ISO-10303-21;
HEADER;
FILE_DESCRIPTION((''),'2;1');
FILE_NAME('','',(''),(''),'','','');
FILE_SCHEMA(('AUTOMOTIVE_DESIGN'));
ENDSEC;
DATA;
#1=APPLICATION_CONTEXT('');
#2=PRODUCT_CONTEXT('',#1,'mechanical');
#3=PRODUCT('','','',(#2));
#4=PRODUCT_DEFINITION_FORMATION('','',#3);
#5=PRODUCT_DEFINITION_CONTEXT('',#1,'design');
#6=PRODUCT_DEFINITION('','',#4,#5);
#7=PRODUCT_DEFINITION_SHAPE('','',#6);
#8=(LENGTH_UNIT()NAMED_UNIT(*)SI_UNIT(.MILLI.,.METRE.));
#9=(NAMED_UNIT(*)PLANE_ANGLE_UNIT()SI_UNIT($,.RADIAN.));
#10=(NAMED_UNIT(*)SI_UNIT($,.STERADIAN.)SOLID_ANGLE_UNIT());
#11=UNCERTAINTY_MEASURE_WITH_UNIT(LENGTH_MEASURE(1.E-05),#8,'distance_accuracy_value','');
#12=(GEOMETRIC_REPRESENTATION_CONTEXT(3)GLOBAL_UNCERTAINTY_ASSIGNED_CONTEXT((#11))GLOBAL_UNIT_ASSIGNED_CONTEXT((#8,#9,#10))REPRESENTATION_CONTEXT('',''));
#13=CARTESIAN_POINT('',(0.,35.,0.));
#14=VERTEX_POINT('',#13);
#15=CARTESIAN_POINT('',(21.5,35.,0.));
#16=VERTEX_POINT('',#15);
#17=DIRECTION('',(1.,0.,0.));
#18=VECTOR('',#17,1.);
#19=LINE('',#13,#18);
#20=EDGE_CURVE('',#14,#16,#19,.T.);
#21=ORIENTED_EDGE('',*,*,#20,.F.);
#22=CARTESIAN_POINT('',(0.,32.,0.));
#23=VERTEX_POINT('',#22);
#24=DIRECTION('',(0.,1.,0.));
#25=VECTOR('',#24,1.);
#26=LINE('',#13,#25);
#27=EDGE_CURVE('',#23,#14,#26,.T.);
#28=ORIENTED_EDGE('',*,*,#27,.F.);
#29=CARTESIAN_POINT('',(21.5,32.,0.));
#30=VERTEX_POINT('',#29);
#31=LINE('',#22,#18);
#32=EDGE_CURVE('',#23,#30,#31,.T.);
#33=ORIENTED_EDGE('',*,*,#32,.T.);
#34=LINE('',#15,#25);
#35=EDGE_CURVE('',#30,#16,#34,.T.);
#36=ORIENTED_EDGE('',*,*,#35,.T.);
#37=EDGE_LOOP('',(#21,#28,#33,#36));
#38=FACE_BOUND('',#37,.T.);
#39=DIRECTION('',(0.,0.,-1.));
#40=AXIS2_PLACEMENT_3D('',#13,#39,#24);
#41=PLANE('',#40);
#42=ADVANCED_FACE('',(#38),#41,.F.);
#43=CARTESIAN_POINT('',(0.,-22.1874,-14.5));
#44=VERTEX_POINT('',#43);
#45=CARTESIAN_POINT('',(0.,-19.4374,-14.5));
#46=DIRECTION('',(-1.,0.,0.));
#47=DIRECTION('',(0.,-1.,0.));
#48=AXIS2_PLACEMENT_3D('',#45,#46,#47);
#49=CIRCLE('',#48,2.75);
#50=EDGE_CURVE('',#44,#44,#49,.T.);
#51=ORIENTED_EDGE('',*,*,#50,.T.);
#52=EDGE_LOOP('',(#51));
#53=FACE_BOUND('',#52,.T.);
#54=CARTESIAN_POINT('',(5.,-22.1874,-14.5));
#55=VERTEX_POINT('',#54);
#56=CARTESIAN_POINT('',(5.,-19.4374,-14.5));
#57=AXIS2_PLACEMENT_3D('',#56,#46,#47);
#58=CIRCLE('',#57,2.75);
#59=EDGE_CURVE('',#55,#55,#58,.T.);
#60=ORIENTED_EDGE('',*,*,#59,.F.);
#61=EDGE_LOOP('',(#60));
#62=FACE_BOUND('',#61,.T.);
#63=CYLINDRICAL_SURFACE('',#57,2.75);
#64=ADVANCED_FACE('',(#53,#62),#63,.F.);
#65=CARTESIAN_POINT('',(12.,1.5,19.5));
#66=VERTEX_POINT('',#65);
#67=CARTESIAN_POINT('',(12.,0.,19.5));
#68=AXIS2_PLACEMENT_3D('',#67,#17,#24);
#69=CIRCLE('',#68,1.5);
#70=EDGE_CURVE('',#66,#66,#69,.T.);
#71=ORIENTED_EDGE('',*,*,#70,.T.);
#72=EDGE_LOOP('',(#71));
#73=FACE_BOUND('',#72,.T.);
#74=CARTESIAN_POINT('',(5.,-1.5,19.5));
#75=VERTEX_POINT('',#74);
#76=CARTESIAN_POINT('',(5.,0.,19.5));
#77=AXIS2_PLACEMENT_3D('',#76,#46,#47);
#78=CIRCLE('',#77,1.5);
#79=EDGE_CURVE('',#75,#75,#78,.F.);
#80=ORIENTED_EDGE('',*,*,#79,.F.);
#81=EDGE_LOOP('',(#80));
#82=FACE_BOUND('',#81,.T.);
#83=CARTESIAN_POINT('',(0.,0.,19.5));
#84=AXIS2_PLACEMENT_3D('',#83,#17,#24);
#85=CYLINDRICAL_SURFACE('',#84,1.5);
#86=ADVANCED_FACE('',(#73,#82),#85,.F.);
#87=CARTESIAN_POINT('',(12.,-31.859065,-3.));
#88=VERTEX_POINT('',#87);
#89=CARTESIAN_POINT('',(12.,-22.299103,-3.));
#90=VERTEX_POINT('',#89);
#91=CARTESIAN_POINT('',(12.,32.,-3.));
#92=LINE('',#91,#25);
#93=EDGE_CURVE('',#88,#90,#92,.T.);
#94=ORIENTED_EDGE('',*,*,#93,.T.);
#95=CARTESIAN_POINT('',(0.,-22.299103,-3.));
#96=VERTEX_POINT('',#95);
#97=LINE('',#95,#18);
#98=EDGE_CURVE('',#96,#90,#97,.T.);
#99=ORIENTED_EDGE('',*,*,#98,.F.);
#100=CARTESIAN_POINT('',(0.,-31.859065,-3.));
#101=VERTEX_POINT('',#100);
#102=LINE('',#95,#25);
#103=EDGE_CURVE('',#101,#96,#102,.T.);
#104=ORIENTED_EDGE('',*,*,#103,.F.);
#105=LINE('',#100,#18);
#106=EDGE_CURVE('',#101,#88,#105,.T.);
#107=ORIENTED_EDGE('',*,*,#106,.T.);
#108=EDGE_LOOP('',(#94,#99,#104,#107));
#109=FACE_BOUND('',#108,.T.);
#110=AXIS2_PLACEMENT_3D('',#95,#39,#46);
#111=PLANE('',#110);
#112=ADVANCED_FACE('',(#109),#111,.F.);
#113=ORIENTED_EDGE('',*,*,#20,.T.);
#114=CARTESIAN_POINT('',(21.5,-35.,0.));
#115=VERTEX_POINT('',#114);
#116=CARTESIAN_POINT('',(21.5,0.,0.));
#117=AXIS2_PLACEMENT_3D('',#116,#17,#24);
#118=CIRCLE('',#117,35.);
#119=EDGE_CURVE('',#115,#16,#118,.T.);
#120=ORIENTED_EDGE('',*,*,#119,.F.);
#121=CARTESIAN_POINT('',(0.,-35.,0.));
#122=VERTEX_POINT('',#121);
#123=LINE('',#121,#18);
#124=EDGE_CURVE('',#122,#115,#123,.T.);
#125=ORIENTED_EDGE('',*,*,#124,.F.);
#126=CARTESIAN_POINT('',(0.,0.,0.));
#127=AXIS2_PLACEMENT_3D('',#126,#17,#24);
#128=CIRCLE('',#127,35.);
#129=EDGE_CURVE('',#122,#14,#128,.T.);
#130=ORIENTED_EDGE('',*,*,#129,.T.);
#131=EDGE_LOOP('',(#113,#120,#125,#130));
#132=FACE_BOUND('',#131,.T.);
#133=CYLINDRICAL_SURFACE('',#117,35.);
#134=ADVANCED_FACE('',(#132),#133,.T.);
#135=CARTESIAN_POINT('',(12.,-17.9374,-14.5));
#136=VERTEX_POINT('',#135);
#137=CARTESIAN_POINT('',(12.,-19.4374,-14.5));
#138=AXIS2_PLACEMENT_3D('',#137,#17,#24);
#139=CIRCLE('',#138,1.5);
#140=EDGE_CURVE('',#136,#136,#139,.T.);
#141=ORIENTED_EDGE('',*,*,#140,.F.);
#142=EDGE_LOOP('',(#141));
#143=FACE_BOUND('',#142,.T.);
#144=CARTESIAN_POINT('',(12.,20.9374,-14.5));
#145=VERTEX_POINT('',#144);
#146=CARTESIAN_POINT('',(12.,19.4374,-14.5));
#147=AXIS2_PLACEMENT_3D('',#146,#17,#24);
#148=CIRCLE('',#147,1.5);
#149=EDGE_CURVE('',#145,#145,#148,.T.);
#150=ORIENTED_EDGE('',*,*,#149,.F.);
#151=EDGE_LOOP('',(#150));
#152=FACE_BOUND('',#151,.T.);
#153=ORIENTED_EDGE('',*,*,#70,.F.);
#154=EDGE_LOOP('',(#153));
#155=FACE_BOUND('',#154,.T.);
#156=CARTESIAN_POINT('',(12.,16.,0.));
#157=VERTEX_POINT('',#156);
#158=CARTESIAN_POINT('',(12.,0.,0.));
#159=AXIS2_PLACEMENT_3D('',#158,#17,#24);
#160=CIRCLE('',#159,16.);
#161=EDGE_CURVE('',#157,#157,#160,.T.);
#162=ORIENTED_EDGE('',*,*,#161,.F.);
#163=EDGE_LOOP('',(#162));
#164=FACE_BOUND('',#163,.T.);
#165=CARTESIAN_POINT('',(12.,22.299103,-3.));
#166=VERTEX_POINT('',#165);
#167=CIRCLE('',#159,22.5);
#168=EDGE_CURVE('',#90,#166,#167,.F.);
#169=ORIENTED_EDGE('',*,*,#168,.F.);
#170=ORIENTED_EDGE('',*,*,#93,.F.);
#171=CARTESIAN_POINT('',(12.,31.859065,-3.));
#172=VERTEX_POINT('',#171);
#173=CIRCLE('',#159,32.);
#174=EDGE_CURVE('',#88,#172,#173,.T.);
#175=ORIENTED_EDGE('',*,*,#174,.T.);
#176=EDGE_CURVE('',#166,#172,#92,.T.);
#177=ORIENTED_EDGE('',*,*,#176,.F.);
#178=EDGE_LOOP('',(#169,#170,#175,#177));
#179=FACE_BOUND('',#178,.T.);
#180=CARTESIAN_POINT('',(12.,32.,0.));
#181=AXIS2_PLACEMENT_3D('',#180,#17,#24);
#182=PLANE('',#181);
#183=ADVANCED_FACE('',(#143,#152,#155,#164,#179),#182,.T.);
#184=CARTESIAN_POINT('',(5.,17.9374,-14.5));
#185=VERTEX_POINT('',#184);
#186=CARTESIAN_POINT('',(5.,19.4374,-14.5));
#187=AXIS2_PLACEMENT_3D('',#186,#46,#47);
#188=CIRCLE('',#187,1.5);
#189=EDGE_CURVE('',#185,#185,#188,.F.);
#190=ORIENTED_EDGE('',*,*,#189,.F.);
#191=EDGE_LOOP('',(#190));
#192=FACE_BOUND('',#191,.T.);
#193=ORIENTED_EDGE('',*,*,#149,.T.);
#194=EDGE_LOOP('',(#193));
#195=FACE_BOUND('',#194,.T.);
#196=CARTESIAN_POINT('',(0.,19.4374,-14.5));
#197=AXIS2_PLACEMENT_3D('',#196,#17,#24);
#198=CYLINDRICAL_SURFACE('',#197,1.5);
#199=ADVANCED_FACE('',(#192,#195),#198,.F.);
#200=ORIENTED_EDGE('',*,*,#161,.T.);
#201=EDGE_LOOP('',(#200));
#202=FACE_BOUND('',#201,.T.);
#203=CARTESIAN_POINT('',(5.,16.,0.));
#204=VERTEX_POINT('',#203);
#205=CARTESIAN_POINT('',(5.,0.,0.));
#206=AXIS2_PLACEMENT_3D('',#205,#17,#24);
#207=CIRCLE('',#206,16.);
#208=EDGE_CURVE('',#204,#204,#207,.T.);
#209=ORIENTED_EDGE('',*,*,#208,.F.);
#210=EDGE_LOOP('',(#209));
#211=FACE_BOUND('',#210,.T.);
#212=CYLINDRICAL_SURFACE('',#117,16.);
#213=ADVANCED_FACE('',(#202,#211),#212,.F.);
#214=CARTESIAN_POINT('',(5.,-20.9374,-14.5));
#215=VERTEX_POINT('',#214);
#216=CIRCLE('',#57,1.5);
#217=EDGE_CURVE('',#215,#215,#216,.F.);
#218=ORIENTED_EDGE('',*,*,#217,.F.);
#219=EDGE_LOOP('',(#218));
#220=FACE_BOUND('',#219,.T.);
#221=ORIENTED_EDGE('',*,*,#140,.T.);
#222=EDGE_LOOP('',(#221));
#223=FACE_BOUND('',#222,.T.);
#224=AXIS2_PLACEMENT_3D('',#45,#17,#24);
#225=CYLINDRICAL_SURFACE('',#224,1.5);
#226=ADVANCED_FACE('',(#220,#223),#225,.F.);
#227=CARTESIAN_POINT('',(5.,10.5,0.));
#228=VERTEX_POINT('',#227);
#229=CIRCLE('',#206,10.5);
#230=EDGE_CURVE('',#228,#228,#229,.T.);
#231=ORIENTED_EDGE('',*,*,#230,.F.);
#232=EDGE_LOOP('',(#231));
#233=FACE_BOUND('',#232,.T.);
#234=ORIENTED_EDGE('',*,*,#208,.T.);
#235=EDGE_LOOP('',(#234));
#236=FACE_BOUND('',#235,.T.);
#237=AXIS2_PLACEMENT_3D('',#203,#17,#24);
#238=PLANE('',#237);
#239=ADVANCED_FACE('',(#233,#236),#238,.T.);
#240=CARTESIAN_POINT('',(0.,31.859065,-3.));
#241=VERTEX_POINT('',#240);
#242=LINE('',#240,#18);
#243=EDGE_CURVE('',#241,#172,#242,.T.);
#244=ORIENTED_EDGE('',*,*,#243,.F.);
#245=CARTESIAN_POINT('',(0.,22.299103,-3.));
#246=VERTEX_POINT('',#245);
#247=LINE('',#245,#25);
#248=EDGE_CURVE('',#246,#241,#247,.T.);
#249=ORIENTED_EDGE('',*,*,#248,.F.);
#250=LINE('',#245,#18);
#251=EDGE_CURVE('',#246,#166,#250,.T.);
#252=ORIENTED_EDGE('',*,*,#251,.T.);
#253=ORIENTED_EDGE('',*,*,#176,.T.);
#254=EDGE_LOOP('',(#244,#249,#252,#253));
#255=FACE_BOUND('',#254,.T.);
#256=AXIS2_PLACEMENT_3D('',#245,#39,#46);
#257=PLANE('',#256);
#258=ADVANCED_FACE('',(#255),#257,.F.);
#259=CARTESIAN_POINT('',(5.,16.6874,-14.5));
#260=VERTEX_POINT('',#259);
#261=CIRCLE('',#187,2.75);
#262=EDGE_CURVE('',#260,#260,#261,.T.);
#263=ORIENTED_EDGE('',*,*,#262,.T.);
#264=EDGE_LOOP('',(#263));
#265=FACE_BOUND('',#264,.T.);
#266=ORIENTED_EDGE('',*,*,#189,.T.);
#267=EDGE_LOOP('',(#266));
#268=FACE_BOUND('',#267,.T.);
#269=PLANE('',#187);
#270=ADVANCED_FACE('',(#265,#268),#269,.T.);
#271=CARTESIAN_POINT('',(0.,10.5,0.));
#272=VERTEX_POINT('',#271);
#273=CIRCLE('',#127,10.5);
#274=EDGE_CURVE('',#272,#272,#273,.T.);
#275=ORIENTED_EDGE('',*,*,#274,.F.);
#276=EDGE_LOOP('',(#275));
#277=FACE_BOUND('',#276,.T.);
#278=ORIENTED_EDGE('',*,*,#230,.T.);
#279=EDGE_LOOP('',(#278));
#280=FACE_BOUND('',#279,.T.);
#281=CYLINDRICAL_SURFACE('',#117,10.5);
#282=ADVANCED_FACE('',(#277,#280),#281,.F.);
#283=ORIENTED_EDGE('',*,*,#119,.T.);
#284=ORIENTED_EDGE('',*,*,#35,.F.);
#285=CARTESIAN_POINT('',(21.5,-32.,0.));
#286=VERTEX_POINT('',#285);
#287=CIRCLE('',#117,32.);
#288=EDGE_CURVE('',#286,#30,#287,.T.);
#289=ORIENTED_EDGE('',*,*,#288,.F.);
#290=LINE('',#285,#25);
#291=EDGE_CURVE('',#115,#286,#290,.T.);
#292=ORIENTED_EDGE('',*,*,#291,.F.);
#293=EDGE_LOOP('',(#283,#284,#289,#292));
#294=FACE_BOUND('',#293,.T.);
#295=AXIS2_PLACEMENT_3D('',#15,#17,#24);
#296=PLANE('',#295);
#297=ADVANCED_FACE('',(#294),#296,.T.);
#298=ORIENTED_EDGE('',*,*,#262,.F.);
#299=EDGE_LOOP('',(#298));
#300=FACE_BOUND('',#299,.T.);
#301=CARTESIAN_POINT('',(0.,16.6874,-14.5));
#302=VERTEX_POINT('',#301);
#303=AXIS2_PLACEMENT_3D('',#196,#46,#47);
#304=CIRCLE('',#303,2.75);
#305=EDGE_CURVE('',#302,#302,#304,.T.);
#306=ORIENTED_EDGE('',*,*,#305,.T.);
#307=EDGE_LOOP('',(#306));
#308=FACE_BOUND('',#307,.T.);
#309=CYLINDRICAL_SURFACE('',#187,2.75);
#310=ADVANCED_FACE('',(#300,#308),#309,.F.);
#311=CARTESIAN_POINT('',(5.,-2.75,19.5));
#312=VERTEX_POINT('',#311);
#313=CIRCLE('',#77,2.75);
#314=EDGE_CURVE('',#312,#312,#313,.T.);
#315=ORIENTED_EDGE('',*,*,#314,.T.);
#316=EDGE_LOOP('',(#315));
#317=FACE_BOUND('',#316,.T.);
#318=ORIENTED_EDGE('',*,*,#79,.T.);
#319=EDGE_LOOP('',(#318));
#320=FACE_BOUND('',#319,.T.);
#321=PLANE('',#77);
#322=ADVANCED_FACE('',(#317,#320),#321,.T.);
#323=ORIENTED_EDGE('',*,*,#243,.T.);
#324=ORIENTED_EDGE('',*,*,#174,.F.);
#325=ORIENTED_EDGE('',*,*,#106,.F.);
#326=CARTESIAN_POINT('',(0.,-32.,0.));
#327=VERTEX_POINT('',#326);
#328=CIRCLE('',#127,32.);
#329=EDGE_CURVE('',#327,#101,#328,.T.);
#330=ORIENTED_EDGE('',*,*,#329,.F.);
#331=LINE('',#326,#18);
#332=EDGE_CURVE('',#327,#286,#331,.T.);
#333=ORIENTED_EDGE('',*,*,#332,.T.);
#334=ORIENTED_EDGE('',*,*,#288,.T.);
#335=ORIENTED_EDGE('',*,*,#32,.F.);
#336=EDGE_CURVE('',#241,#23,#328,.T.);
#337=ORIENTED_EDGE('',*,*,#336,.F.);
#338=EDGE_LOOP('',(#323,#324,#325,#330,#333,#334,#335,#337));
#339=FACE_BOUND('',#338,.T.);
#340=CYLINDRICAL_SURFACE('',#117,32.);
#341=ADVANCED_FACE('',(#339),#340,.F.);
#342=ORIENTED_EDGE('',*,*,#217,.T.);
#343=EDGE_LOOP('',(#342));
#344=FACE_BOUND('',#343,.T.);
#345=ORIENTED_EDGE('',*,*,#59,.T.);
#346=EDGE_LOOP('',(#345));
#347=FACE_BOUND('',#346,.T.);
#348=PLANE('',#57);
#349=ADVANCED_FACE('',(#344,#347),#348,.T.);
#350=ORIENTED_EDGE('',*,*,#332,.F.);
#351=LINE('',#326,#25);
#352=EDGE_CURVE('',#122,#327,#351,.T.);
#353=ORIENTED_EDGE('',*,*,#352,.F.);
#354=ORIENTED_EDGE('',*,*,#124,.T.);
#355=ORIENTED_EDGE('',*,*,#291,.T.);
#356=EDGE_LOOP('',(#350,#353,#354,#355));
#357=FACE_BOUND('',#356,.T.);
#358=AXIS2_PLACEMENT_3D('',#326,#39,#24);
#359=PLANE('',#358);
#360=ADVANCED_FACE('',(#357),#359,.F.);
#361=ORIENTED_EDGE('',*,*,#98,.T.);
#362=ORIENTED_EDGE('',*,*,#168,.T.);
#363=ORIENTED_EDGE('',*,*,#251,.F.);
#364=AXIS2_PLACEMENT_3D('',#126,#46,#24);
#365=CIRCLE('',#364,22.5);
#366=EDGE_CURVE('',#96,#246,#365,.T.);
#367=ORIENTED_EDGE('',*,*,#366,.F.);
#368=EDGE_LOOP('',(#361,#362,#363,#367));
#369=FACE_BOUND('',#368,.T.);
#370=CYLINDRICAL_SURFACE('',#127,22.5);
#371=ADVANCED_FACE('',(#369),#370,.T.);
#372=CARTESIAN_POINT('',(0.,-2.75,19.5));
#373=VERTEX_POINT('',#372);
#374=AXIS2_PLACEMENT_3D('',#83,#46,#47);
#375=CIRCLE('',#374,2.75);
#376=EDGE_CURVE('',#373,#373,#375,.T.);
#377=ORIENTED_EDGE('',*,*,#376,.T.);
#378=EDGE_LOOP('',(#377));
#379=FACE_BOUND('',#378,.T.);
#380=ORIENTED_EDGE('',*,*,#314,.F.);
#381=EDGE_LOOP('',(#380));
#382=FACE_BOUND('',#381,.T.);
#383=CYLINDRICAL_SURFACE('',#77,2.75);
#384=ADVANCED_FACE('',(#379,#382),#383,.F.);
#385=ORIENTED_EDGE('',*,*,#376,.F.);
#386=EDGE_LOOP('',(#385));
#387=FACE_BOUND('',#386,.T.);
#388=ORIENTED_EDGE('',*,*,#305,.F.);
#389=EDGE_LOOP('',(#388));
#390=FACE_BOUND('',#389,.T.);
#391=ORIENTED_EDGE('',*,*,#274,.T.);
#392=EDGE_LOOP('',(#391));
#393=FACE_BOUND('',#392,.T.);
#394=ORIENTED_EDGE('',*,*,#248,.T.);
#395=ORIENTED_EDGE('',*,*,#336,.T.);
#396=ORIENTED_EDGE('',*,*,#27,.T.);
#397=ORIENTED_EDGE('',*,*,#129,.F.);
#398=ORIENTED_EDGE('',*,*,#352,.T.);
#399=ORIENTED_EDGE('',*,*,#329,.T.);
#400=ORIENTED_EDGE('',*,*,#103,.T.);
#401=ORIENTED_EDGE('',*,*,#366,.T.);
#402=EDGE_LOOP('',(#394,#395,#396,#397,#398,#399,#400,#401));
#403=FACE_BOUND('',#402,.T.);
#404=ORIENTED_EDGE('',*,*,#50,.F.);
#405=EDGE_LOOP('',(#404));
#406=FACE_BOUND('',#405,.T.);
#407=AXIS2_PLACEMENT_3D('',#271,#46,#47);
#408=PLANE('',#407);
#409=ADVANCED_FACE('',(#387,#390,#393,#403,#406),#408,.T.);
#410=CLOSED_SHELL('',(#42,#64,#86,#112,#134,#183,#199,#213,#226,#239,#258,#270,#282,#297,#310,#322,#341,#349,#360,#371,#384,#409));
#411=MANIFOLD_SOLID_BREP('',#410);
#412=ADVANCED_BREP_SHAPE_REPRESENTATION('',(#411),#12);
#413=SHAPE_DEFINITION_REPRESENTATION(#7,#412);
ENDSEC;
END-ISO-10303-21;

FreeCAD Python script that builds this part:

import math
import FreeCAD as App
import Part
import Sketcher
from FreeCAD import Vector
Q = App.Units.Quantity

doc = App.newDocument("Part")
body = doc.addObject("PartDesign::Body", "Body")

# Sketch on XY plane
sketch1 = body.newObject("Sketcher::SketchObject", "Sketch")
sketch1.AttachmentSupport = (doc.getObject("XY_Plane"), [""])
sketch1.MapMode = "FlatFace"
sketch1.addGeometry(Part.LineSegment(Vector(21.5, 32, 0), Vector(21.5, 35, 0)), False)
sketch1.addGeometry(Part.LineSegment(Vector(21.5, 35, 0), Vector(0, 35, 0)), False)
sketch1.addGeometry(Part.LineSegment(Vector(0, 35, 0), Vector(0, 10.5, 0)), False)
sketch1.addGeometry(Part.LineSegment(Vector(0, 10.5, 0), Vector(5, 10.5, 0)), False)
sketch1.addGeometry(Part.LineSegment(Vector(5, 10.5, 0), Vector(5, 16, 0)), False)
sketch1.addGeometry(Part.LineSegment(Vector(5, 16, 0), Vector(12, 16, 0)), False)
sketch1.addGeometry(Part.LineSegment(Vector(12, 16, 0), Vector(12, 32, 0)), False)
sketch1.addGeometry(Part.LineSegment(Vector(12, 32, 0), Vector(21.5, 32, 0)), False)
sketch1.addConstraint(Sketcher.Constraint("Coincident", 0, 2, 1, 1))
sketch1.addConstraint(Sketcher.Constraint("Coincident", 1, 2, 2, 1))
sketch1.addConstraint(Sketcher.Constraint("Coincident", 2, 2, 3, 1))
sketch1.addConstraint(Sketcher.Constraint("Coincident", 3, 2, 4, 1))
sketch1.addConstraint(Sketcher.Constraint("Coincident", 4, 2, 5, 1))
sketch1.addConstraint(Sketcher.Constraint("Coincident", 5, 2, 6, 1))
sketch1.addConstraint(Sketcher.Constraint("Coincident", 6, 2, 7, 1))
sketch1.addConstraint(Sketcher.Constraint("Coincident", 7, 2, 0, 1))
sketch1.addConstraint(Sketcher.Constraint("Vertical", 0))
sketch1.addConstraint(Sketcher.Constraint("Horizontal", 1))
sketch1.addConstraint(Sketcher.Constraint("Vertical", 2))
sketch1.addConstraint(Sketcher.Constraint("Horizontal", 3))
sketch1.addConstraint(Sketcher.Constraint("Vertical", 4))
sketch1.addConstraint(Sketcher.Constraint("Horizontal", 5))
sketch1.addConstraint(Sketcher.Constraint("Vertical", 6))
sketch1.addConstraint(Sketcher.Constraint("Horizontal", 7))
sketch1.addConstraint(Sketcher.Constraint("PointOnObject", 1, 2, -2))
sketch1.addConstraint(Sketcher.Constraint("DistanceX", 3, 1, 3, 2, Q("5 mm")))
sketch1.addConstraint(Sketcher.Constraint("DistanceX", 5, 1, 5, 2, Q("7 mm")))
sketch1.addConstraint(Sketcher.Constraint("DistanceY", 0, 1, 0, 2, Q("3 mm")))
sketch1.addConstraint(Sketcher.Constraint("DistanceY", 6, 1, 6, 2, Q("16 mm")))
sketch1.addConstraint(Sketcher.Constraint("DistanceX", 1, 2, 1, 1, Q("21.5 mm")))
sketch1.addConstraint(Sketcher.Constraint("DistanceY", 2, 2, 2, 1, Q("24.5 mm")))
sketch1.addConstraint(Sketcher.Constraint("DistanceY", -1, 1, 0, 2, Q("35 mm")))
revolution = body.newObject("PartDesign::Revolution", "Revolution")
revolution.Profile = sketch1
revolution.ReferenceAxis = (sketch1, ["H_Axis"])
revolution.Angle = 360

# Sketch on YZ plane
sketch2 = body.newObject("Sketcher::SketchObject", "Sketch001")
sketch2.AttachmentSupport = (doc.getObject("YZ_Plane"), [""])
sketch2.MapMode = "FlatFace"
sketch2.AttachmentOffset = App.Placement(Vector(0, 0, 12), App.Rotation())
sketch2.addGeometry(Part.Circle(Vector(0, 19.5, 0), Vector(0, 0, 1), 1.5), False)
sketch2.addGeometry(Part.Circle(Vector(-19.4, -14.5, 0), Vector(0, 0, 1), 1.5), False)
sketch2.addGeometry(Part.Circle(Vector(19.4, -14.5, 0), Vector(0, 0, 1), 1.5), False)
sketch2.addGeometry(Part.LineSegment(Vector(22.3, -3, 0), Vector(31.9, -3, 0)), False)
sketch2.addGeometry(Part.ArcOfCircle(Part.Circle(Vector(0, 0, 0), Vector(0, 0, 1), 32), math.radians(-5.38), math.radians(0)), False)
sketch2.addGeometry(Part.LineSegment(Vector(32, 0, 0), Vector(35, 0, 0)), False)
sketch2.addGeometry(Part.ArcOfCircle(Part.Circle(Vector(0, 0, 0), Vector(0, 0, 1), 35), math.radians(0), math.radians(180)), False)
sketch2.addGeometry(Part.LineSegment(Vector(-35, 0, 0), Vector(-32, 0, 0)), False)
sketch2.addGeometry(Part.ArcOfCircle(Part.Circle(Vector(0, 0, 0), Vector(0, 0, 1), 32), math.radians(-180), math.radians(-174.62)), False)
sketch2.addGeometry(Part.LineSegment(Vector(-31.9, -3, 0), Vector(-22.3, -3, 0)), False)
sketch2.addGeometry(Part.ArcOfCircle(Part.Circle(Vector(0, 0, 0), Vector(0, 0, 1), 22.5), math.radians(-8), math.radians(188)), False)
sketch2.addConstraint(Sketcher.Constraint("Coincident", 3, 2, 4, 1))
sketch2.addConstraint(Sketcher.Constraint("Coincident", 4, 2, 5, 1))
sketch2.addConstraint(Sketcher.Constraint("Coincident", 5, 2, 6, 1))
sketch2.addConstraint(Sketcher.Constraint("Coincident", 6, 2, 7, 1))
sketch2.addConstraint(Sketcher.Constraint("Coincident", 7, 2, 8, 1))
sketch2.addConstraint(Sketcher.Constraint("Coincident", 8, 2, 9, 1))
sketch2.addConstraint(Sketcher.Constraint("Coincident", 9, 2, 10, 2))
sketch2.addConstraint(Sketcher.Constraint("Coincident", 10, 1, 3, 1))
sketch2.addConstraint(Sketcher.Constraint("Horizontal", 3))
sketch2.addConstraint(Sketcher.Constraint("Horizontal", 5))
sketch2.addConstraint(Sketcher.Constraint("Horizontal", 7))
sketch2.addConstraint(Sketcher.Constraint("Horizontal", 9))
sketch2.addConstraint(Sketcher.Constraint("Coincident", 4, 3, -1, 1))
sketch2.addConstraint(Sketcher.Constraint("Coincident", 6, 3, -1, 1))
sketch2.addConstraint(Sketcher.Constraint("Coincident", 8, 3, -1, 1))
sketch2.addConstraint(Sketcher.Constraint("Coincident", 10, 3, -1, 1))
sketch2.addConstraint(Sketcher.Constraint("Equal", 0, 1))
sketch2.addConstraint(Sketcher.Constraint("Equal", 1, 2))
sketch2.addConstraint(Sketcher.Constraint("Equal", 4, 8))
sketch2.addConstraint(Sketcher.Constraint("Symmetric", 1, 3, 2, 3, -2))
sketch2.addConstraint(Sketcher.Constraint("PointOnObject", 0, 3, -2))
sketch2.addConstraint(Sketcher.Constraint("PointOnObject", 4, 2, -1))
sketch2.addConstraint(Sketcher.Constraint("PointOnObject", 6, 2, -1))
sketch2.addConstraint(Sketcher.Constraint("Horizontal", 3, 2, 8, 2))
sketch2.addConstraint(Sketcher.Constraint("Diameter", 0, Q("3 mm")))
sketch2.addConstraint(Sketcher.Constraint("Radius", 4, Q("32 mm")))
sketch2.addConstraint(Sketcher.Constraint("Radius", 6, Q("35 mm")))
sketch2.addConstraint(Sketcher.Constraint("Radius", 10, Q("22.5 mm")))
sketch2.addConstraint(Sketcher.Constraint("DistanceY", 3, 2, -1, 1, Q("3 mm")))
sketch2.addConstraint(Sketcher.Constraint("DistanceY", 1, 3, 0, 3, Q("34 mm")))
sketch2.addConstraint(Sketcher.Constraint("DistanceY", -1, 1, 0, 3, Q("19.5 mm")))
sketch2.addConstraint(Sketcher.Constraint("DistanceX", 1, 3, -1, 1, Q("19.4374 mm")))
pocket1 = body.newObject("PartDesign::Pocket", "Pocket")
pocket1.Profile = sketch2
pocket1.Type = "ThroughAll"
pocket1.Midplane = True

# Sketch on YZ plane
sketch3 = body.newObject("Sketcher::SketchObject", "Sketch002")
sketch3.AttachmentSupport = (doc.getObject("YZ_Plane"), [""])
sketch3.MapMode = "FlatFace"
sketch3.addGeometry(Part.Circle(Vector(19.4, -14.5, 0), Vector(0, 0, 1), 2.8), False)
sketch3.addGeometry(Part.Circle(Vector(0, 19.5, 0), Vector(0, 0, 1), 2.8), False)
sketch3.addGeometry(Part.Circle(Vector(-19.4, -14.5, 0), Vector(0, 0, 1), 2.8), False)
sketch3.addConstraint(Sketcher.Constraint("Equal", 0, 1))
sketch3.addConstraint(Sketcher.Constraint("Equal", 1, 2))
sketch3.addConstraint(Sketcher.Constraint("Symmetric", 0, 3, 2, 3, -2))
sketch3.addConstraint(Sketcher.Constraint("PointOnObject", 1, 3, -2))
sketch3.addConstraint(Sketcher.Constraint("Diameter", 0, Q("5.5 mm")))
sketch3.addConstraint(Sketcher.Constraint("DistanceY", 0, 3, 1, 3, Q("34 mm")))
sketch3.addConstraint(Sketcher.Constraint("DistanceY", 0, 3, -1, 1, Q("14.5 mm")))
sketch3.addConstraint(Sketcher.Constraint("DistanceX", -1, 1, 0, 3, Q("19.4374 mm")))
pocket2 = body.newObject("PartDesign::Pocket", "Pocket001")
pocket2.Profile = sketch3
pocket2.Length = 5
pocket2.Reversed = True

doc.recompute()
